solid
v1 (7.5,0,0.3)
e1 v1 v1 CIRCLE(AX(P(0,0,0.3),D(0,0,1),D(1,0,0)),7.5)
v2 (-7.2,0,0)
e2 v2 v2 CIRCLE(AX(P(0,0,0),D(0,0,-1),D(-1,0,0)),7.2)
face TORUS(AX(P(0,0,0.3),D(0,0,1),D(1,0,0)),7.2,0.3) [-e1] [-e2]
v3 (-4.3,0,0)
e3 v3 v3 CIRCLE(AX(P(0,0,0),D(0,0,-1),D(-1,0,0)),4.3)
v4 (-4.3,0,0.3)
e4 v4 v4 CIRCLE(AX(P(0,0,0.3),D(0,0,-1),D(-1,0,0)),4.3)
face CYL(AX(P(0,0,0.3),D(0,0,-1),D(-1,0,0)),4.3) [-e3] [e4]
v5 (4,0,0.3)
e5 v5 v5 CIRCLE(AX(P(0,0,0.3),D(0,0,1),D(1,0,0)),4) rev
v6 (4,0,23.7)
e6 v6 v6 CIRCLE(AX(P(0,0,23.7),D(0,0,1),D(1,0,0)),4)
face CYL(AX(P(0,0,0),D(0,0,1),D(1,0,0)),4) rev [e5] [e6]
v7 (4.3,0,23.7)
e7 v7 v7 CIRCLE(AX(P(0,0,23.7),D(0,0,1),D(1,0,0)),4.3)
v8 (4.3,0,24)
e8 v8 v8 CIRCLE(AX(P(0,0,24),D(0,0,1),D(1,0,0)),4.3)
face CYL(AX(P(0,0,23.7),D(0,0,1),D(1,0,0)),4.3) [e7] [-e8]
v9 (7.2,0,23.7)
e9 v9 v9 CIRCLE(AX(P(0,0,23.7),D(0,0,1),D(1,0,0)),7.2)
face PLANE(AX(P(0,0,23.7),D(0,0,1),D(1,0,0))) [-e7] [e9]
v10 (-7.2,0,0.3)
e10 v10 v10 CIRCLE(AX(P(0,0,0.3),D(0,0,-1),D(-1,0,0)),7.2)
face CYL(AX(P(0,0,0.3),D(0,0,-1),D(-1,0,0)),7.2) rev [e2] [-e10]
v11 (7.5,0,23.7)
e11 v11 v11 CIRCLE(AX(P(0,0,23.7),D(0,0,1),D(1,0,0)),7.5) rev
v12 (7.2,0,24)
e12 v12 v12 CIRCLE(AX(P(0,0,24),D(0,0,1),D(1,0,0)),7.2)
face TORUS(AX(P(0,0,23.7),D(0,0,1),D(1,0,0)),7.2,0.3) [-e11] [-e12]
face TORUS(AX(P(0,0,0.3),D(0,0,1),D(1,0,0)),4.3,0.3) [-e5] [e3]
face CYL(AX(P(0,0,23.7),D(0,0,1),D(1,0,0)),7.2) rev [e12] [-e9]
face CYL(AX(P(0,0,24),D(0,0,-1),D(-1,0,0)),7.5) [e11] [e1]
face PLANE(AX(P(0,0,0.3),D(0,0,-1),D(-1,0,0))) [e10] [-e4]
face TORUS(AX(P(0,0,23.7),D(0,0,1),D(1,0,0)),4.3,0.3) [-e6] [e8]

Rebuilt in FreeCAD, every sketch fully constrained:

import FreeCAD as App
import Part
import Sketcher

V = App.Vector
Q = App.Units.Quantity


def edges_at(feature, points):
    """Names of the edges that pass closest to the given points."""
    edges = feature.Shape.Edges
    near = lambda p: min(range(len(edges)), key=lambda i: edges[i].distToShape(Part.Vertex(*p))[0])
    return sorted({f"Edge{near(p) + 1}" for p in points})

doc = App.newDocument("Part")
body = doc.addObject("PartDesign::Body", "Body")

sketch1 = doc.addObject("Sketcher::SketchObject", "Sketch")
body.addObject(sketch1)
sketch1.AttachmentSupport = (doc.XY_Plane, [""])
sketch1.MapMode = "FlatFace"
sketch1.addGeometry(Part.Circle(V(0, 0, 0), V(0, 0, 1), 8), False)
sketch1.addConstraint([
    Sketcher.Constraint("Coincident", 0, 3, -1, 1),
    Sketcher.Constraint("Diameter", 0, Q("15 mm")),
])
pad1 = doc.addObject("PartDesign::Pad", "Pad")
body.addObject(pad1)
pad1.Profile = sketch1
pad1.Length = 24

sketch2 = doc.addObject("Sketcher::SketchObject", "Sketch001")
body.addObject(sketch2)
sketch2.AttachmentSupport = (doc.XY_Plane, [""])
sketch2.MapMode = "FlatFace"
sketch2.AttachmentOffset = App.Placement(V(0, 0, 24), App.Rotation())
sketch2.addGeometry(Part.Circle(V(0, 0, 0), V(0, 0, 1), 4), False)
sketch2.addConstraint([
    Sketcher.Constraint("Coincident", 0, 3, -1, 1),
    Sketcher.Constraint("Diameter", 0, Q("8 mm")),
])
pocket1 = doc.addObject("PartDesign::Pocket", "Pocket")
body.addObject(pocket1)
pocket1.Profile = sketch2
pocket1.Length = 24
doc.recompute()

fillet = doc.addObject("PartDesign::Fillet", "Fillet")
body.addObject(fillet)
fillet.Base = (pocket1, edges_at(pocket1, [(-4, 0, 0), (-4, 0, 24)]))
fillet.Radius = 0.3
doc.recompute()

fillet2 = doc.addObject("PartDesign::Fillet", "Fillet001")
body.addObject(fillet2)
fillet2.Base = (fillet, edges_at(fillet, [(-7.5, 0, 0), (-7.5, 0, 24)]))
fillet2.Radius = 0.3

sketch3 = doc.addObject("Sketcher::SketchObject", "Sketch002")
body.addObject(sketch3)
sketch3.AttachmentSupport = (doc.XY_Plane, [""])
sketch3.MapMode = "FlatFace"
sketch3.addGeometry([
    Part.Circle(V(0, 0, 0), V(0, 0, 1), 7.2),
    Part.Circle(V(0, 0, 0), V(0, 0, 1), 4.3),
], False)
sketch3.addConstraint([
    Sketcher.Constraint("Coincident", 0, 3, -1, 1),
    Sketcher.Constraint("Coincident", 1, 3, -1, 1),
    Sketcher.Constraint("Diameter", 0, Q("14.4 mm")),
    Sketcher.Constraint("Diameter", 1, Q("8.6 mm")),
])
pocket2 = doc.addObject("PartDesign::Pocket", "Pocket001")
body.addObject(pocket2)
pocket2.Profile = sketch3
pocket2.Length = 0.3
pocket2.Reversed = True

sketch4 = doc.addObject("Sketcher::SketchObject", "Sketch003")
body.addObject(sketch4)
sketch4.AttachmentSupport = (doc.XY_Plane, [""])
sketch4.MapMode = "FlatFace"
sketch4.AttachmentOffset = App.Placement(V(0, 0, 23.7), App.Rotation())
sketch4.addGeometry([
    Part.Circle(V(0, 0, 0), V(0, 0, 1), 7.2),
    Part.Circle(V(0, 0, 0), V(0, 0, 1), 4.3),
], False)
sketch4.addConstraint([
    Sketcher.Constraint("Coincident", 0, 3, -1, 1),
    Sketcher.Constraint("Coincident", 1, 3, -1, 1),
    Sketcher.Constraint("Diameter", 0, Q("14.4 mm")),
    Sketcher.Constraint("Diameter", 1, Q("8.6 mm")),
])
pocket3 = doc.addObject("PartDesign::Pocket", "Pocket002")
body.addObject(pocket3)
pocket3.Profile = sketch4
pocket3.Length = 0.3
pocket3.Reversed = True

doc.recompute()
